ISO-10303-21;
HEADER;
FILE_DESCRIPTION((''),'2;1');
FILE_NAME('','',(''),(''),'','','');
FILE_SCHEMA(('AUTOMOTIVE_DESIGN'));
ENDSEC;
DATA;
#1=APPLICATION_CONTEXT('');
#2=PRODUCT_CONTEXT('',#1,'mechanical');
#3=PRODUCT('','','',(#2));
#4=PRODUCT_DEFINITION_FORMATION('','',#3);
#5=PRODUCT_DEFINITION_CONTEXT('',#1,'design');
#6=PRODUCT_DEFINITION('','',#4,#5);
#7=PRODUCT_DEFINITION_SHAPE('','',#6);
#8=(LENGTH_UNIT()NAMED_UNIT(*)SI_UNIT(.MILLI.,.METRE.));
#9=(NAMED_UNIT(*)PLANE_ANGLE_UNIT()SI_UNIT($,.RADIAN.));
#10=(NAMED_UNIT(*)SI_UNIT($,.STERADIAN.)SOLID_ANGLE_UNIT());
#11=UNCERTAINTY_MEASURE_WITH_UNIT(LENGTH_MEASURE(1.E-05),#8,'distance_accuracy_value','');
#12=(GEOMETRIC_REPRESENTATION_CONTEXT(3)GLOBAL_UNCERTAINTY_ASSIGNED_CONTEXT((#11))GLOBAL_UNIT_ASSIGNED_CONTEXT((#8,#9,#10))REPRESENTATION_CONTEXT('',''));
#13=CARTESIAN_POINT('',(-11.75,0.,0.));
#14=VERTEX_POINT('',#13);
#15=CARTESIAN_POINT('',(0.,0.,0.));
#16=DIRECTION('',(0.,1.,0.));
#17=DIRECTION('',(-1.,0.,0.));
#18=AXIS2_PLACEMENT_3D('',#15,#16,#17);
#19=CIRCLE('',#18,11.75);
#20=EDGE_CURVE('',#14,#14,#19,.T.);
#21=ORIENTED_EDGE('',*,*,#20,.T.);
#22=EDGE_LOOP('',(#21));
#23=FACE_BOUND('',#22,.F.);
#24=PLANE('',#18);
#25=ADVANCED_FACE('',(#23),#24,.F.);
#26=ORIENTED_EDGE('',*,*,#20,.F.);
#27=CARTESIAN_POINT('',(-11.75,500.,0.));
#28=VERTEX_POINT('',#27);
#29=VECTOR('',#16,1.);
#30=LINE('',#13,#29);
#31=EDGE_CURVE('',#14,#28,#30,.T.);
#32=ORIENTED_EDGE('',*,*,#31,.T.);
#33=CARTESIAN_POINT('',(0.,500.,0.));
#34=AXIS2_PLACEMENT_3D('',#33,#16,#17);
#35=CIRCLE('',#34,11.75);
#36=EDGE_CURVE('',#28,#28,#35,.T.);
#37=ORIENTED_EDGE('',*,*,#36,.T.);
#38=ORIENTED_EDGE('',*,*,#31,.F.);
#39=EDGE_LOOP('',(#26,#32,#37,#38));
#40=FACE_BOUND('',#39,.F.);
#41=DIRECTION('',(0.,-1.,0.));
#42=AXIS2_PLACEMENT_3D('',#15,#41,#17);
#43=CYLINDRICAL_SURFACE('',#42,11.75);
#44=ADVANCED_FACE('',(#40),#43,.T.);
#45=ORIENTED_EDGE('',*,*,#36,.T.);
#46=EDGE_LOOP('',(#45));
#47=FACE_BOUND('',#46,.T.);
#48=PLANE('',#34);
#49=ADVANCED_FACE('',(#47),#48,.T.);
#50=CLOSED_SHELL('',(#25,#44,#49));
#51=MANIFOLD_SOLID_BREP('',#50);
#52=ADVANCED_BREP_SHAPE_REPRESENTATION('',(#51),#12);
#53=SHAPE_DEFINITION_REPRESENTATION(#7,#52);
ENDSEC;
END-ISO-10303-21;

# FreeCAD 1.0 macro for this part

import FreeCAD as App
import Part
import Sketcher

V = App.Vector
Q = App.Units.Quantity

doc = App.newDocument("Part")
body = doc.addObject("PartDesign::Body", "Body")

# Sketch on XZ plane
sketch1 = body.newObject("Sketcher::SketchObject", "Sketch")
sketch1.AttachmentSupport = (doc.getObject("XZ_Plane"), [""])
sketch1.MapMode = "FlatFace"
sketch1.addGeometry(Part.Circle(V(0, 0, 0), V(0, 0, 1), 12), False)
sketch1.addConstraint([
    Sketcher.Constraint("Coincident", 0, 3, -1, 1),
    Sketcher.Constraint("Diameter", 0, Q("23.5 mm")),
])
pad1 = body.newObject("PartDesign::Pad", "Pad")
pad1.Profile = sketch1
pad1.Length = 500
pad1.Reversed = True

doc.recompute()
